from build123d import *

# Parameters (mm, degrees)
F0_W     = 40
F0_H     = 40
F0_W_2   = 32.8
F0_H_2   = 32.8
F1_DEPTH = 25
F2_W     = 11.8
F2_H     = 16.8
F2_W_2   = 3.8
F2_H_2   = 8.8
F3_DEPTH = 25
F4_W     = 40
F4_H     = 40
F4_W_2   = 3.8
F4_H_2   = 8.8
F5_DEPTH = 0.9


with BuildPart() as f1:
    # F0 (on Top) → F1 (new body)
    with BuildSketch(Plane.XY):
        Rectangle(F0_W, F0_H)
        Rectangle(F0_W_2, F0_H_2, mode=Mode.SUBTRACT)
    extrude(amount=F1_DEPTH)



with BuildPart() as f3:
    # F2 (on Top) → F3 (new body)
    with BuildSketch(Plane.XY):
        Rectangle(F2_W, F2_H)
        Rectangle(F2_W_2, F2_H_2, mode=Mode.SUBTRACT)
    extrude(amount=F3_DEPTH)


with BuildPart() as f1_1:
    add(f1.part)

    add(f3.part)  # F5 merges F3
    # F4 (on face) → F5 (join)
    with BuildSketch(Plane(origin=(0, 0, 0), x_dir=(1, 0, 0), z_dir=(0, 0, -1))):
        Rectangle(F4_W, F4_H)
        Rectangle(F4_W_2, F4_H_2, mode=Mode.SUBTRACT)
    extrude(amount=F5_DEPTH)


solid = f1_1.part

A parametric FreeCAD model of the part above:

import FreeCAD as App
import Part
import Sketcher

V = App.Vector
Q = App.Units.Quantity

doc = App.newDocument("Part")
body = doc.addObject("PartDesign::Body", "Body")

sketch1 = doc.addObject("Sketcher::SketchObject", "Sketch")
body.addObject(sketch1)
sketch1.AttachmentSupport = (doc.XY_Plane, [""])
sketch1.MapMode = "FlatFace"
sketch1.addGeometry(Part.LineSegment(V(-20, 20, 0), V(-20, -20, 0)), False)
sketch1.addGeometry(Part.LineSegment(V(-20, -20, 0), V(20, -20, 0)), False)
sketch1.addGeometry(Part.LineSegment(V(20, -20, 0), V(20, 20, 0)), False)
sketch1.addGeometry(Part.LineSegment(V(20, 20, 0), V(-20, 20, 0)), False)
sketch1.addGeometry(Part.LineSegment(V(16, -16, 0), V(-16, -16, 0)), False)
sketch1.addGeometry(Part.LineSegment(V(-16, -16, 0), V(-16, 16, 0)), False)
sketch1.addGeometry(Part.LineSegment(V(-16, 16, 0), V(16, 16, 0)), False)
sketch1.addGeometry(Part.LineSegment(V(16, 16, 0), V(16, -16, 0)), False)
sketch1.addConstraint(Sketcher.Constraint("Coincident", 0, 2, 1, 1))
sketch1.addConstraint(Sketcher.Constraint("Coincident", 1, 2, 2, 1))
sketch1.addConstraint(Sketcher.Constraint("Coincident", 2, 2, 3, 1))
sketch1.addConstraint(Sketcher.Constraint("Coincident", 3, 2, 0, 1))
sketch1.addConstraint(Sketcher.Constraint("Coincident", 4, 2, 5, 1))
sketch1.addConstraint(Sketcher.Constraint("Coincident", 5, 2, 6, 1))
sketch1.addConstraint(Sketcher.Constraint("Coincident", 6, 2, 7, 1))
sketch1.addConstraint(Sketcher.Constraint("Coincident", 7, 2, 4, 1))
sketch1.addConstraint(Sketcher.Constraint("Vertical", 0))
sketch1.addConstraint(Sketcher.Constraint("Horizontal", 1))
sketch1.addConstraint(Sketcher.Constraint("Vertical", 2))
sketch1.addConstraint(Sketcher.Constraint("Horizontal", 3))
sketch1.addConstraint(Sketcher.Constraint("Horizontal", 4))
sketch1.addConstraint(Sketcher.Constraint("Vertical", 5))
sketch1.addConstraint(Sketcher.Constraint("Horizontal", 6))
sketch1.addConstraint(Sketcher.Constraint("Vertical", 7))
sketch1.addConstraint(Sketcher.Constraint("Symmetric", 0, 2, 2, 2, -1, 1))
sketch1.addConstraint(Sketcher.Constraint("Symmetric", 4, 2, 6, 2, -1, 1))
sketch1.addConstraint(Sketcher.Constraint("Equal", 3, 0))
sketch1.addConstraint(Sketcher.Constraint("Equal", 6, 5))
sketch1.addConstraint(Sketcher.Constraint("DistanceX", 1, 1, 1, 2, Q("40 mm")))
sketch1.addConstraint(Sketcher.Constraint("DistanceX", 4, 2, 4, 1, Q("32.8 mm")))
pad1 = doc.addObject("PartDesign::Pad", "Pad")
body.addObject(pad1)
pad1.Profile = sketch1
pad1.Length = 25
body2 = doc.addObject("PartDesign::Body", "Body001")

sketch2 = doc.addObject("Sketcher::SketchObject", "Sketch001")
body2.addObject(sketch2)
sketch2.AttachmentSupport = (doc.getObject("XY_Plane001"), [""])
sketch2.MapMode = "FlatFace"
sketch2.addGeometry(Part.LineSegment(V(-5.9, 8.4, 0), V(-5.9, -8.4, 0)), False)
sketch2.addGeometry(Part.LineSegment(V(-5.9, -8.4, 0), V(5.9, -8.4, 0)), False)
sketch2.addGeometry(Part.LineSegment(V(5.9, -8.4, 0), V(5.9, 8.4, 0)), False)
sketch2.addGeometry(Part.LineSegment(V(5.9, 8.4, 0), V(-5.9, 8.4, 0)), False)
sketch2.addGeometry(Part.LineSegment(V(1.9, -4.4, 0), V(-1.9, -4.4, 0)), False)
sketch2.addGeometry(Part.LineSegment(V(-1.9, -4.4, 0), V(-1.9, 4.4, 0)), False)
sketch2.addGeometry(Part.LineSegment(V(-1.9, 4.4, 0), V(1.9, 4.4, 0)), False)
sketch2.addGeometry(Part.LineSegment(V(1.9, 4.4, 0), V(1.9, -4.4, 0)), False)
sketch2.addConstraint(Sketcher.Constraint("Coincident", 0, 2, 1, 1))
sketch2.addConstraint(Sketcher.Constraint("Coincident", 1, 2, 2, 1))
sketch2.addConstraint(Sketcher.Constraint("Coincident", 2, 2, 3, 1))
sketch2.addConstraint(Sketcher.Constraint("Coincident", 3, 2, 0, 1))
sketch2.addConstraint(Sketcher.Constraint("Coincident", 4, 2, 5, 1))
sketch2.addConstraint(Sketcher.Constraint("Coincident", 5, 2, 6, 1))
sketch2.addConstraint(Sketcher.Constraint("Coincident", 6, 2, 7, 1))
sketch2.addConstraint(Sketcher.Constraint("Coincident", 7, 2, 4, 1))
sketch2.addConstraint(Sketcher.Constraint("Vertical", 0))
sketch2.addConstraint(Sketcher.Constraint("Horizontal", 1))
sketch2.addConstraint(Sketcher.Constraint("Vertical", 2))
sketch2.addConstraint(Sketcher.Constraint("Horizontal", 3))
sketch2.addConstraint(Sketcher.Constraint("Horizontal", 4))
sketch2.addConstraint(Sketcher.Constraint("Vertical", 5))
sketch2.addConstraint(Sketcher.Constraint("Horizontal", 6))
sketch2.addConstraint(Sketcher.Constraint("Vertical", 7))
sketch2.addConstraint(Sketcher.Constraint("Symmetric", 0, 2, 2, 2, -1, 1))
sketch2.addConstraint(Sketcher.Constraint("Symmetric", 4, 2, 6, 2, -1, 1))
sketch2.addConstraint(Sketcher.Constraint("DistanceX", 1, 1, 1, 2, Q("11.8 mm")))
sketch2.addConstraint(Sketcher.Constraint("DistanceX", 4, 2, 4, 1, Q("3.8 mm")))
sketch2.addConstraint(Sketcher.Constraint("DistanceY", 0, 2, 0, 1, Q("16.8 mm")))
sketch2.addConstraint(Sketcher.Constraint("DistanceY", 5, 1, 5, 2, Q("8.8 mm")))
pad2 = doc.addObject("PartDesign::Pad", "Pad001")
body2.addObject(pad2)
pad2.Profile = sketch2
pad2.Length = 25
body.AllowCompound = True
doc.recompute()

boolean = doc.addObject("PartDesign::Boolean", "Boolean")
body.addObject(boolean)
boolean.Type = "Fuse"
boolean.addObjects([body2])

sketch3 = doc.addObject("Sketcher::SketchObject", "Sketch002")
body.addObject(sketch3)
sketch3.AttachmentSupport = (doc.XY_Plane, [""])
sketch3.MapMode = "FlatFace"
sketch3.addGeometry(Part.LineSegment(V(-20, -20, 0), V(-20, 20, 0)), False)
sketch3.addGeometry(Part.LineSegment(V(-20, 20, 0), V(20, 20, 0)), False)
sketch3.addGeometry(Part.LineSegment(V(20, 20, 0), V(20, -20, 0)), False)
sketch3.addGeometry(Part.LineSegment(V(20, -20, 0), V(-20, -20, 0)), False)
sketch3.addGeometry(Part.LineSegment(V(1.9, 4.4, 0), V(-1.9, 4.4, 0)), False)
sketch3.addGeometry(Part.LineSegment(V(-1.9, 4.4, 0), V(-1.9, -4.4, 0)), False)
sketch3.addGeometry(Part.LineSegment(V(-1.9, -4.4, 0), V(1.9, -4.4, 0)), False)
sketch3.addGeometry(Part.LineSegment(V(1.9, -4.4, 0), V(1.9, 4.4, 0)), False)
sketch3.addConstraint(Sketcher.Constraint("Coincident", 0, 2, 1, 1))
sketch3.addConstraint(Sketcher.Constraint("Coincident", 1, 2, 2, 1))
sketch3.addConstraint(Sketcher.Constraint("Coincident", 2, 2, 3, 1))
sketch3.addConstraint(Sketcher.Constraint("Coincident", 3, 2, 0, 1))
sketch3.addConstraint(Sketcher.Constraint("Coincident", 4, 2, 5, 1))
sketch3.addConstraint(Sketcher.Constraint("Coincident", 5, 2, 6, 1))
sketch3.addConstraint(Sketcher.Constraint("Coincident", 6, 2, 7, 1))
sketch3.addConstraint(Sketcher.Constraint("Coincident", 7, 2, 4, 1))
sketch3.addConstraint(Sketcher.Constraint("Vertical", 0))
sketch3.addConstraint(Sketcher.Constraint("Horizontal", 1))
sketch3.addConstraint(Sketcher.Constraint("Vertical", 2))
sketch3.addConstraint(Sketcher.Constraint("Horizontal", 3))
sketch3.addConstraint(Sketcher.Constraint("Horizontal", 4))
sketch3.addConstraint(Sketcher.Constraint("Vertical", 5))
sketch3.addConstraint(Sketcher.Constraint("Horizontal", 6))
sketch3.addConstraint(Sketcher.Constraint("Vertical", 7))
sketch3.addConstraint(Sketcher.Constraint("Symmetric", 0, 2, 2, 2, -1, 1))
sketch3.addConstraint(Sketcher.Constraint("Symmetric", 4, 2, 6, 2, -1, 1))
sketch3.addConstraint(Sketcher.Constraint("Equal", 3, 0))
sketch3.addConstraint(Sketcher.Constraint("DistanceX", 1, 1, 1, 2, Q("40 mm")))
sketch3.addConstraint(Sketcher.Constraint("DistanceX", 4, 2, 4, 1, Q("3.8 mm")))
sketch3.addConstraint(Sketcher.Constraint("DistanceY", 5, 2, 5, 1, Q("8.8 mm")))
pad3 = doc.addObject("PartDesign::Pad", "Pad002")
body.addObject(pad3)
pad3.Profile = sketch3
pad3.Length = 0.9
pad3.Reversed = True

doc.recompute()
